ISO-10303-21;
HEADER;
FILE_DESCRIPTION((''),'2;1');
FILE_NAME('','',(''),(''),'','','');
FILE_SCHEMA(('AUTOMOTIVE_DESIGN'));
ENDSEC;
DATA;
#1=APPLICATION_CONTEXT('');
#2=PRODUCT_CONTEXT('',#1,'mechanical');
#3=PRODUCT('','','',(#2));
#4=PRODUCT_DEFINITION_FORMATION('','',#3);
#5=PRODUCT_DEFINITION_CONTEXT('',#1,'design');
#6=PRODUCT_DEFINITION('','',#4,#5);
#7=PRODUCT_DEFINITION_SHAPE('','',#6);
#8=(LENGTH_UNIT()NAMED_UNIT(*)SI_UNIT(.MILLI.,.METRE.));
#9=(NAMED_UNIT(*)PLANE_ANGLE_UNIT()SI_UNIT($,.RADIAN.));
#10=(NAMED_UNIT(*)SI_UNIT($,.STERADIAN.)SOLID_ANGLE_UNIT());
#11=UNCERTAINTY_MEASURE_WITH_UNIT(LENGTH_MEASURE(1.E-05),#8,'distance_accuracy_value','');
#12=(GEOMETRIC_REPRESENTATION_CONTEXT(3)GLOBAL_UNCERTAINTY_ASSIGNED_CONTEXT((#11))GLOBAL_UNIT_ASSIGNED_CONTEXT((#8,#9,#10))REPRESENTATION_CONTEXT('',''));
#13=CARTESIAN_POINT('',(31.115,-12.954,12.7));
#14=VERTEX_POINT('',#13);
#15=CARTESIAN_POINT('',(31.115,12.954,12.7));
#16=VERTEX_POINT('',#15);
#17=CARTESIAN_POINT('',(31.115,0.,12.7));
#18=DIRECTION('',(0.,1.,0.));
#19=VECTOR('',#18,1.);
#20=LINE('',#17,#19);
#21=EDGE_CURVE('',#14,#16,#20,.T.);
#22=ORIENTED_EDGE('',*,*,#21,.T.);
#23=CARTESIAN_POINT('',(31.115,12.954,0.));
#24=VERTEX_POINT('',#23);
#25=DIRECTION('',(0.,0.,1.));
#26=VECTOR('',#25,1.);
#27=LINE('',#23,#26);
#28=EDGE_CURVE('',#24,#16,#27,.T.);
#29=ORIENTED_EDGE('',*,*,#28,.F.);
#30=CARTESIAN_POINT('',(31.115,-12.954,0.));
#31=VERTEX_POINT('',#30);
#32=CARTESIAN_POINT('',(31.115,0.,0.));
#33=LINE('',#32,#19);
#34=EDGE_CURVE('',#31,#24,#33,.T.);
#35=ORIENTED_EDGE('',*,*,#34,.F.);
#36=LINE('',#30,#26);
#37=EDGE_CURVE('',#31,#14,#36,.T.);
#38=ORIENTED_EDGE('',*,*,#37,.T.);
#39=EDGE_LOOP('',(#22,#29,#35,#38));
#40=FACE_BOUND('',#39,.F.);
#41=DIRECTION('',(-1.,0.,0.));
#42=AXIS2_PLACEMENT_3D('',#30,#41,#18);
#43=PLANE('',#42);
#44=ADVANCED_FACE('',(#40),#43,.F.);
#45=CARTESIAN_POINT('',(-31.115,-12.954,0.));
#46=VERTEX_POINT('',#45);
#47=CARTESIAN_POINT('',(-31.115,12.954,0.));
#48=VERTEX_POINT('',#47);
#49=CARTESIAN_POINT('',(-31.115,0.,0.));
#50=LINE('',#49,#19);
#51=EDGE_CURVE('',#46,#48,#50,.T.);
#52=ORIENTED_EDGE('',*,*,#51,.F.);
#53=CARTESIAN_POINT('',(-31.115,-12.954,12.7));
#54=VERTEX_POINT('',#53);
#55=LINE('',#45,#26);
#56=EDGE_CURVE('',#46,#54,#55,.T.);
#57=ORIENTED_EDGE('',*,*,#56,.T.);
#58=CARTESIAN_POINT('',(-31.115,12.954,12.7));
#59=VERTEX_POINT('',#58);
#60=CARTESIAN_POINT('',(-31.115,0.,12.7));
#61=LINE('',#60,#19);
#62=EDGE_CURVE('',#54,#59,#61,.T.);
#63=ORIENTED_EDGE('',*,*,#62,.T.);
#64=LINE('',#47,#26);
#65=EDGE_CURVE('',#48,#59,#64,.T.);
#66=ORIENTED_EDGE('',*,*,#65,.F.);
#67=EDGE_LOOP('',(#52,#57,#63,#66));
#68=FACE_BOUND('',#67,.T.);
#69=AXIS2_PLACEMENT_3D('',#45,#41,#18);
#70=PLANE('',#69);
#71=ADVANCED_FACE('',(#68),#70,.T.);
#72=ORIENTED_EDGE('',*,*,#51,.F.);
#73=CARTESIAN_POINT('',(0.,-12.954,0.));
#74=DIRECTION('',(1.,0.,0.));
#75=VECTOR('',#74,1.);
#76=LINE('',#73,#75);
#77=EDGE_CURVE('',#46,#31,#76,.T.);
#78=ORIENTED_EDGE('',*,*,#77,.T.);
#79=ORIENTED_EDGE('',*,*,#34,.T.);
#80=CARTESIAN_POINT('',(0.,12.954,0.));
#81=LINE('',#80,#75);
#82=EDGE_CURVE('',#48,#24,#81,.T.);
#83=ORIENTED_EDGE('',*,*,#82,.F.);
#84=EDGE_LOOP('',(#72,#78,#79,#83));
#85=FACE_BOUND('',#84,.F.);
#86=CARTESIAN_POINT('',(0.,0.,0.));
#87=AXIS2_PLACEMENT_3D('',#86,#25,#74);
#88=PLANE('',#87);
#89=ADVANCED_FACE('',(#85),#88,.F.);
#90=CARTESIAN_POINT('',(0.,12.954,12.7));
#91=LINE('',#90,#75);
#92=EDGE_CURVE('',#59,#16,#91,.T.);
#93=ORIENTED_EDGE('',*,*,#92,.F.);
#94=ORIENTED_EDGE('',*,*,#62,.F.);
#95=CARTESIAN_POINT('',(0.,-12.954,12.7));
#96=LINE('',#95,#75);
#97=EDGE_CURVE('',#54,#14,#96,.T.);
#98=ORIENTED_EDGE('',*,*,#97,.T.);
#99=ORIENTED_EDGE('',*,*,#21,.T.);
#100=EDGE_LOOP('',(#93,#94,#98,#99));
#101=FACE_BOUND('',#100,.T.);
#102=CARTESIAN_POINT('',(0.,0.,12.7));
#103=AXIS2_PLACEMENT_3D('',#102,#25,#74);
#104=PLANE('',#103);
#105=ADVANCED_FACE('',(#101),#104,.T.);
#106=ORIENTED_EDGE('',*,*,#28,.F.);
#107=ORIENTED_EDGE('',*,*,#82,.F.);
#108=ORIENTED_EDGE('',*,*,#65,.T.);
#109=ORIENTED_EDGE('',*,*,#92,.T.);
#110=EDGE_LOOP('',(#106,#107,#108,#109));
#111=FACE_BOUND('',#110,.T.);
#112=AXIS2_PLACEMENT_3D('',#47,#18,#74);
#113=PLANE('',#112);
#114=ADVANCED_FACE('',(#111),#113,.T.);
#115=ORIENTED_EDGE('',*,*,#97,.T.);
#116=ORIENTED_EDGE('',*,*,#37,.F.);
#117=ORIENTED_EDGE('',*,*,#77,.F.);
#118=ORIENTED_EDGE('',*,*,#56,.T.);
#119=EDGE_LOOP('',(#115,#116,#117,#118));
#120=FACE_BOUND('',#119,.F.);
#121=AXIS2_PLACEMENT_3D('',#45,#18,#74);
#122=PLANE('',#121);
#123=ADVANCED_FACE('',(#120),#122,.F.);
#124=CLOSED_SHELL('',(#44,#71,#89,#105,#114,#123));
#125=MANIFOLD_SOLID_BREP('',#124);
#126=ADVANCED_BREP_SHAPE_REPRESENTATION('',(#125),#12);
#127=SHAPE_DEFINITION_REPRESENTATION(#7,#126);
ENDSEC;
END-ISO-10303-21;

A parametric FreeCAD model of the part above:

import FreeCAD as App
import Part
import Sketcher
Q = App.Units.Quantity


def add_polygon(sketch, points):
    """Adds a closed chain of lines whose ends are joined by coincident constraints."""
    first, n = sketch.GeometryCount, len(points)
    for a, b in zip(points, points[1:] + points[:1]):
        sketch.addGeometry(Part.LineSegment(App.Vector(*a, 0), App.Vector(*b, 0)), False)
    for i in range(n):
        sketch.addConstraint(Sketcher.Constraint("Coincident", first + i, 2, first + (i + 1) % n, 1))

doc = App.newDocument("Part")
params = doc.addObject("Spreadsheet::Sheet", "Params")
for row, (alias, value) in enumerate([
    ("sketch1_width", "2.45 in"),
    ("sketch1_height", "1.02 in"),
    ("pad1_length", "0.5 in"),
], start=1):
    params.set(f"A{row}", alias)
    params.set(f"B{row}", "=" + value)
    params.setAlias(f"B{row}", alias)

body = doc.addObject("PartDesign::Body", "Body")

sketch1 = doc.addObject("Sketcher::SketchObject", "Sketch")
body.addObject(sketch1)
sketch1.AttachmentSupport = (doc.XY_Plane, [""])
sketch1.MapMode = "FlatFace"
add_polygon(sketch1, [(-31, 13), (-31, -13), (31, -13), (31, 13)])
sketch1.addConstraint([
    Sketcher.Constraint("Vertical", 0),
    Sketcher.Constraint("Horizontal", 1),
    Sketcher.Constraint("Vertical", 2),
    Sketcher.Constraint("Horizontal", 3),
    Sketcher.Constraint("Symmetric", 0, 2, 2, 2, -1, 1),
    Sketcher.Constraint("DistanceX", 1, 1, 1, 2, Q("2.45 in")),
    Sketcher.Constraint("DistanceY", 0, 2, 0, 1, Q("1.02 in")),
])
sketch1.setExpression("Constraints[9]", "Params.sketch1_width")
sketch1.setExpression("Constraints[10]", "Params.sketch1_height")
pad1 = doc.addObject("PartDesign::Pad", "Pad")
body.addObject(pad1)
pad1.Profile = sketch1
pad1.setExpression("Length", "Params.pad1_length")

doc.recompute()
